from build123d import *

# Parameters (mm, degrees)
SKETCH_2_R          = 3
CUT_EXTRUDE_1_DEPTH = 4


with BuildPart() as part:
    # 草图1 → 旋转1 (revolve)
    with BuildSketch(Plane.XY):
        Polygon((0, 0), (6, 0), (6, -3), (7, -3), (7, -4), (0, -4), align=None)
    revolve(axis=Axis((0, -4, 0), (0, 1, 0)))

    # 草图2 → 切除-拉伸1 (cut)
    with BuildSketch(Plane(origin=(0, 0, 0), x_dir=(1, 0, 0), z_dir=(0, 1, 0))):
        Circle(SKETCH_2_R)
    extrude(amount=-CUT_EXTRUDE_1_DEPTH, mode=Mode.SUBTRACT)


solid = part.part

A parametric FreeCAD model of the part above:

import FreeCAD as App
import Part
import Sketcher


def add_polygon(sketch, points):
    """Adds a closed chain of lines whose ends are joined by coincident constraints."""
    first, n = sketch.GeometryCount, len(points)
    for a, b in zip(points, points[1:] + points[:1]):
        sketch.addGeometry(Part.LineSegment(App.Vector(*a, 0), App.Vector(*b, 0)), False)
    for i in range(n):
        sketch.addConstraint(Sketcher.Constraint("Coincident", first + i, 2, first + (i + 1) % n, 1))

doc = App.newDocument("Part")
body = doc.addObject("PartDesign::Body", "Body")

# Sketch on XY plane
sketch1 = doc.addObject("Sketcher::SketchObject", "Sketch")
body.addObject(sketch1)
sketch1.AttachmentSupport = (doc.XY_Plane, [""])
sketch1.MapMode = "FlatFace"
add_polygon(sketch1, [(6, 0), (0, 0), (0, -4), (7, -4), (7, -3), (6, -3)])  # lines 0-5
sketch1.addConstraint(Sketcher.Constraint("Horizontal", 0))
sketch1.addConstraint(Sketcher.Constraint("Vertical", 1))
sketch1.addConstraint(Sketcher.Constraint("Horizontal", 2))
sketch1.addConstraint(Sketcher.Constraint("Vertical", 3))
sketch1.addConstraint(Sketcher.Constraint("Horizontal", 4))
sketch1.addConstraint(Sketcher.Constraint("Vertical", 5))
sketch1.addConstraint(Sketcher.Constraint("Coincident", 0, 2, -1, 1))
sketch1.addConstraint(Sketcher.Constraint("Equal", 4, 3))
sketch1.addConstraint(Sketcher.Constraint("DistanceX", 0, 2, 0, 1, 6.0))
sketch1.addConstraint(Sketcher.Constraint("DistanceX", 2, 1, 2, 2, 7.0))
sketch1.addConstraint(Sketcher.Constraint("DistanceY", 1, 2, 1, 1, 4.0))
revolution = doc.addObject("PartDesign::Revolution", "Revolution")
body.addObject(revolution)
revolution.Profile = sketch1
revolution.ReferenceAxis = (sketch1, ["V_Axis"])
revolution.Angle = 360

# Sketch on XZ plane
sketch2 = doc.addObject("Sketcher::SketchObject", "Sketch001")
body.addObject(sketch2)
sketch2.AttachmentSupport = (doc.XZ_Plane, [""])
sketch2.MapMode = "FlatFace"
sketch2.addGeometry(Part.Circle(App.Vector(0, 0, 0), App.Vector(0, 0, 1), 3), False)
sketch2.addConstraint(Sketcher.Constraint("Coincident", 0, 3, -1, 1))
sketch2.addConstraint(Sketcher.Constraint("Diameter", 0, 6.0))
pocket1 = doc.addObject("PartDesign::Pocket", "Pocket")
body.addObject(pocket1)
pocket1.Profile = sketch2
pocket1.Length = 4
pocket1.Reversed = True

doc.recompute()
